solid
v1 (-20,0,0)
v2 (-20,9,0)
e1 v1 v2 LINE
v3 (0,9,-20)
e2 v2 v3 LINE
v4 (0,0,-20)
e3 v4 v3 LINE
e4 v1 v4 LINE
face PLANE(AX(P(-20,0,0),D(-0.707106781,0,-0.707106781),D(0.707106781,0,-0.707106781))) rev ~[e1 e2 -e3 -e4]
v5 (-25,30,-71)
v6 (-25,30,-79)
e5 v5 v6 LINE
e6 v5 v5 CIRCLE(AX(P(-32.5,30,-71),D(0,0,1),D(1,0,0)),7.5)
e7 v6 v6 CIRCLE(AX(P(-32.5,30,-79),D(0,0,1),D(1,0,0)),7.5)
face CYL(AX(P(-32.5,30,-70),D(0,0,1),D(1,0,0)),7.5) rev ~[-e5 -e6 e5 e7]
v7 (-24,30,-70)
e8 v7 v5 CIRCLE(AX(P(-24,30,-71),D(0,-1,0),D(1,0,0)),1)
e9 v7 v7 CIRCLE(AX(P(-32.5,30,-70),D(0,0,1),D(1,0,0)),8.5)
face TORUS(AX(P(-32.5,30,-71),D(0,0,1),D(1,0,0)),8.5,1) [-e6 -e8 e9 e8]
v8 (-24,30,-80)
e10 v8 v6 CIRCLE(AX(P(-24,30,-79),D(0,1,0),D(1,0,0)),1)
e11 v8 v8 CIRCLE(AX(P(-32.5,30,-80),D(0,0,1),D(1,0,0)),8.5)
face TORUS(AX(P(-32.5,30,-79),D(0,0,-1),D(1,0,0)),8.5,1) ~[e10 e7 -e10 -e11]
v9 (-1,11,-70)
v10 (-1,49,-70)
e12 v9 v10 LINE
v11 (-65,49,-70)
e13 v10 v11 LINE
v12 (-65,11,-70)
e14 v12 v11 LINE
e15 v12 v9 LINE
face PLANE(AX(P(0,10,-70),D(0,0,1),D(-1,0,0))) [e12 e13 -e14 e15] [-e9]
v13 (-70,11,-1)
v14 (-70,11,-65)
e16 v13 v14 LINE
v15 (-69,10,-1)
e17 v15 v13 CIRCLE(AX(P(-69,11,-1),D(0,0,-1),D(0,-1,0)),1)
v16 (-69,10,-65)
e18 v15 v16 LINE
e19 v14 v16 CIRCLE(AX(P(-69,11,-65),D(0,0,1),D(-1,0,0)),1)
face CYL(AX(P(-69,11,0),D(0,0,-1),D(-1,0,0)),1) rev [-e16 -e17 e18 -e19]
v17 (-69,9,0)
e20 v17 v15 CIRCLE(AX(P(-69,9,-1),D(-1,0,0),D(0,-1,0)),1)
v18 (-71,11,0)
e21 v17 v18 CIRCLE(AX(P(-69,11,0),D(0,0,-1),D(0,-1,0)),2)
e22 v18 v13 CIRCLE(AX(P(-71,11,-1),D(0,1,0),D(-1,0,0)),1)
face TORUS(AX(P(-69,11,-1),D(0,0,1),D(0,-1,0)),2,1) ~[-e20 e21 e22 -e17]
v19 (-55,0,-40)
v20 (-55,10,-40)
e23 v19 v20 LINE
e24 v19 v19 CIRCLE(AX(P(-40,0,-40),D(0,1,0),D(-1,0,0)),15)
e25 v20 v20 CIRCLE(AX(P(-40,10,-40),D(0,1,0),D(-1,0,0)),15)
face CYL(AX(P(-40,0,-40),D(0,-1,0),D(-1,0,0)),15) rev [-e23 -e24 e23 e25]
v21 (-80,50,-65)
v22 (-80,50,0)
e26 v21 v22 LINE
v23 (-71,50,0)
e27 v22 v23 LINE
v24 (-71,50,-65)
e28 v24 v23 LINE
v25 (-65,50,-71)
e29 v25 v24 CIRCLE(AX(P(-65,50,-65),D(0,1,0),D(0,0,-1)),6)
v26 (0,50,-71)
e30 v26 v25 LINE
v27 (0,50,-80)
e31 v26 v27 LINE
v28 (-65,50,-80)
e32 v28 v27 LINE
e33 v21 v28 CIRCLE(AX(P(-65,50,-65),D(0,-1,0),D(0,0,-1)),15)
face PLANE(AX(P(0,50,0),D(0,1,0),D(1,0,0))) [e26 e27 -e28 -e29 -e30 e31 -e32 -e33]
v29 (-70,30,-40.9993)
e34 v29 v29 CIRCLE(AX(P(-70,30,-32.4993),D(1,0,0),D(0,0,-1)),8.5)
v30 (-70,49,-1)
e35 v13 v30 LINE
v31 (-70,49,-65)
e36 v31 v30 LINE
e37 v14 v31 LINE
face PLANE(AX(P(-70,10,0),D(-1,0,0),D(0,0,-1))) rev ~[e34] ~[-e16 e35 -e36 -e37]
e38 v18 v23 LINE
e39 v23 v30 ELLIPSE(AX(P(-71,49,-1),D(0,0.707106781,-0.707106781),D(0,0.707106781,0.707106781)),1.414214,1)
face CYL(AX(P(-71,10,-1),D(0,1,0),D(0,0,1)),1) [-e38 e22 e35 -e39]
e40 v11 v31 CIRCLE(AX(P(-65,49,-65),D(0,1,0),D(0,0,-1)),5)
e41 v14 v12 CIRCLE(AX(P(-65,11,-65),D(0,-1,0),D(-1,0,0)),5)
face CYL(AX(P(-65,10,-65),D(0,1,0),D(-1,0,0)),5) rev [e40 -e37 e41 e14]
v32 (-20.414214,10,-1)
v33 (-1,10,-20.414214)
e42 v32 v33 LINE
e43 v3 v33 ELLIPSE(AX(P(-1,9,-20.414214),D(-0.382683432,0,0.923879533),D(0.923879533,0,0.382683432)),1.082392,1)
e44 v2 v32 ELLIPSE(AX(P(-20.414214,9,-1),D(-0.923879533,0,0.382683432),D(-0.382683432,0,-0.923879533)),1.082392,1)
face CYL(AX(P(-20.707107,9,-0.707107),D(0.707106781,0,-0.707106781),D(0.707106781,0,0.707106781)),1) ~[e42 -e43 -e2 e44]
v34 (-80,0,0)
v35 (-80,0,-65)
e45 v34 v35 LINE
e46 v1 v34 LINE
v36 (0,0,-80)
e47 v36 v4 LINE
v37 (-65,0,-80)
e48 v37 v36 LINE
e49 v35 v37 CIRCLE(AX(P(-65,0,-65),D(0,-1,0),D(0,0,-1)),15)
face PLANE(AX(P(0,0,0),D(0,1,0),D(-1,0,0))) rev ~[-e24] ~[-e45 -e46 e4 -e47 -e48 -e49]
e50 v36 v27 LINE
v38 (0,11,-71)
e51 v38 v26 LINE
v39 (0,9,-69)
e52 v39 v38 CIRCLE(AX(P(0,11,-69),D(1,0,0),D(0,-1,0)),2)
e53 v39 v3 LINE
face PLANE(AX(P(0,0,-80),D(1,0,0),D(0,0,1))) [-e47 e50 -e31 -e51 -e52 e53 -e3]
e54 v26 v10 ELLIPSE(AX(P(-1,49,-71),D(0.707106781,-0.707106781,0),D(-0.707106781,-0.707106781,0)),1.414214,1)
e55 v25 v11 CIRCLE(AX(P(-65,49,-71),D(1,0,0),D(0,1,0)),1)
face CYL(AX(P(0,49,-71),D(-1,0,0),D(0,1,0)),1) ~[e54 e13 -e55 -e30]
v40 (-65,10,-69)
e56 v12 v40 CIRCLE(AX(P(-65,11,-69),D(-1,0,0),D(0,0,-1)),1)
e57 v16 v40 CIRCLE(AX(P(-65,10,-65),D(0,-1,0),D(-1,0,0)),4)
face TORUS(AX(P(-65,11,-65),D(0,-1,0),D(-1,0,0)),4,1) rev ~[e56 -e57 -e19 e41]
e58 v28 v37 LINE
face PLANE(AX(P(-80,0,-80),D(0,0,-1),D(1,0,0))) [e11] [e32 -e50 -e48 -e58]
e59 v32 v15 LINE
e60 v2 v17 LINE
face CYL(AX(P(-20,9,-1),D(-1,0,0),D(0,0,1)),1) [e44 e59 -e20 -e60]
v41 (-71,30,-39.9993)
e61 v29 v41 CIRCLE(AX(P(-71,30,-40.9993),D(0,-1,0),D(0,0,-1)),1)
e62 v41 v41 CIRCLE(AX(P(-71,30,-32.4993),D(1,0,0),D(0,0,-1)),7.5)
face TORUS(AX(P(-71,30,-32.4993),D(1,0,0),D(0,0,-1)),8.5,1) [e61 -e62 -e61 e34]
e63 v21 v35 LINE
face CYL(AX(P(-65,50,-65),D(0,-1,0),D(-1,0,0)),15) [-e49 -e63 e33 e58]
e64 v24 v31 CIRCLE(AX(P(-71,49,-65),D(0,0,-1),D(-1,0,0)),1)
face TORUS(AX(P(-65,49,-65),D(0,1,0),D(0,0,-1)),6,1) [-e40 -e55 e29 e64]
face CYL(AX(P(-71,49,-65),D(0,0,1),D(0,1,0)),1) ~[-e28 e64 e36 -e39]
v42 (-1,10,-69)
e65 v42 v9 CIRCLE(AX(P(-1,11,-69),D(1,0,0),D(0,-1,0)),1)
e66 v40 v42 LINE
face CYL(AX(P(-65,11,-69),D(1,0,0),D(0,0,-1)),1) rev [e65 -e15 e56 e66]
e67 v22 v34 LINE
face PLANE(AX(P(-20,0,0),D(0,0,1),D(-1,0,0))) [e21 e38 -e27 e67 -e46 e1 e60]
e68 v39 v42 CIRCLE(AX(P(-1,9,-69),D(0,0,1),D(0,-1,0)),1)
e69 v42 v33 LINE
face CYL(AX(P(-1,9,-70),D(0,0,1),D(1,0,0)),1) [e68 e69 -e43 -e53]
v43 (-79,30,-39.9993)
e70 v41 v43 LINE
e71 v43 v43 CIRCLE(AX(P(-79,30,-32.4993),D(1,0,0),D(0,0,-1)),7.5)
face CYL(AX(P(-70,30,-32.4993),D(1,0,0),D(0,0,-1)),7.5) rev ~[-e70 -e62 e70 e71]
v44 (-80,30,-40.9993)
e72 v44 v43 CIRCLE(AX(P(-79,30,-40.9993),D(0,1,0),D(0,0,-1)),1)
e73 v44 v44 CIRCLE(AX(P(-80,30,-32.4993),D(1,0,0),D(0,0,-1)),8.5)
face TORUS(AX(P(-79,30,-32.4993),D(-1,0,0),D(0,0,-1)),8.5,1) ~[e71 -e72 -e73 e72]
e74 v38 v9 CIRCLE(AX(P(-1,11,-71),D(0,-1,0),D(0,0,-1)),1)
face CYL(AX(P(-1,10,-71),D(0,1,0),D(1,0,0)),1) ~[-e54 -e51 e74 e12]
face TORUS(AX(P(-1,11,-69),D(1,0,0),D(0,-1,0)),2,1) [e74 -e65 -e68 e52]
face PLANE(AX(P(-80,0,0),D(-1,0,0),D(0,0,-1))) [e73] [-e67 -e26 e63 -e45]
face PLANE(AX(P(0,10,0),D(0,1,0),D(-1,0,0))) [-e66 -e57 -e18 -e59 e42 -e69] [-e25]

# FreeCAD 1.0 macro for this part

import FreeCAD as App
import Part
import Sketcher
from FreeCAD import Vector
Q = App.Units.Quantity


def edges_at(feature, points):
    """Names of the edges that pass closest to the given points."""
    edges = feature.Shape.Edges
    near = lambda p: min(range(len(edges)), key=lambda i: edges[i].distToShape(Part.Vertex(*p))[0])
    return sorted({f"Edge{near(p) + 1}" for p in points})


def add_polygon(sketch, points):
    """Adds a closed chain of lines whose ends are joined by coincident constraints."""
    first, n = sketch.GeometryCount, len(points)
    for a, b in zip(points, points[1:] + points[:1]):
        sketch.addGeometry(Part.LineSegment(App.Vector(*a, 0), App.Vector(*b, 0)), False)
    for i in range(n):
        sketch.addConstraint(Sketcher.Constraint("Coincident", first + i, 2, first + (i + 1) % n, 1))

doc = App.newDocument("Part")
params = doc.addObject("Spreadsheet::Sheet", "Params")
for row, (alias, value) in enumerate([
    ("sketch1_diameter", "30 mm"),
    ("sketch1_width", "80 mm"),
    ("pad1_length", "10 mm"),
    ("sketch2_width", "10 mm"),
    ("sketch2_width2", "80 mm"),
    ("pad2_length", "40 mm"),
    ("fillet_radius", "5 mm"),
    ("fillet2_radius", "15 mm"),
    ("sketch3_diameter", "15 mm"),
    ("pocket1_length", "40 mm"),
    ("sketch4_diameter", "15 mm"),
    ("pocket2_length", "40 mm"),
    ("fillet3_radius", "1 mm"),
], start=1):
    params.set(f"A{row}", alias)
    params.set(f"B{row}", "=" + value)
    params.setAlias(f"B{row}", alias)

body = doc.addObject("PartDesign::Body", "Body")

sketch1 = body.newObject("Sketcher::SketchObject", "Sketch")
sketch1.AttachmentSupport = (doc.getObject("XZ_Plane"), [""])
sketch1.MapMode = "FlatFace"
add_polygon(sketch1, [(-80, 0), (-20, 0), (0, -20), (0, -80), (-80, -80)])
sketch1.addGeometry(Part.Circle(Vector(-40, -40, 0), Vector(0, 0, 1), 15), False)
sketch1.addConstraint([
    Sketcher.Constraint("Horizontal", 0),
    Sketcher.Constraint("Vertical", 2),
    Sketcher.Constraint("Horizontal", 3),
    Sketcher.Constraint("Vertical", 4),
    Sketcher.Constraint("PointOnObject", 0, 2, -1),
    Sketcher.Constraint("PointOnObject", 1, 2, -2),
    Sketcher.Constraint("Equal", 0, 2),
    Sketcher.Constraint("Equal", 3, 4),
    Sketcher.Constraint("Diameter", 5, Q("30 mm")),
    Sketcher.Constraint("DistanceX", 3, 2, 3, 1, Q("80 mm")),
    Sketcher.Constraint("DistanceX", 0, 2, -1, 1, Q("20 mm")),
    Sketcher.Constraint("DistanceX", 5, 3, 0, 2, Q("20 mm")),
    Sketcher.Constraint("DistanceY", 5, 3, 1, 2, Q("20 mm")),
])
sketch1.setExpression("Constraints[13]", "Params.sketch1_diameter")
sketch1.setExpression("Constraints[14]", "Params.sketch1_width")
pad1 = body.newObject("PartDesign::Pad", "Pad")
pad1.Profile = sketch1
pad1.setExpression("Length", "Params.pad1_length")
pad1.Reversed = True

sketch2 = body.newObject("Sketcher::SketchObject", "Sketch001")
sketch2.AttachmentSupport = (doc.getObject("XZ_Plane"), [""])
sketch2.MapMode = "FlatFace"
sketch2.AttachmentOffset = App.Placement(Vector(0, 0, -10), App.Rotation())
add_polygon(sketch2, [(0, -70), (0, -80), (-80, -80), (-80, 0), (-70, 0), (-70, -70)])
sketch2.addConstraint([
    Sketcher.Constraint("Vertical", 0),
    Sketcher.Constraint("Horizontal", 1),
    Sketcher.Constraint("Vertical", 2),
    Sketcher.Constraint("Horizontal", 3),
    Sketcher.Constraint("Vertical", 4),
    Sketcher.Constraint("Horizontal", 5),
    Sketcher.Constraint("PointOnObject", 0, 2, -2),
    Sketcher.Constraint("PointOnObject", 2, 2, -1),
    Sketcher.Constraint("Equal", 3, 0),
    Sketcher.Constraint("Equal", 1, 2),
    Sketcher.Constraint("DistanceX", 3, 1, 3, 2, Q("10 mm")),
    Sketcher.Constraint("DistanceX", 1, 2, 1, 1, Q("80 mm")),
])
sketch2.setExpression("Constraints[16]", "Params.sketch2_width")
sketch2.setExpression("Constraints[17]", "Params.sketch2_width2")
pad2 = body.newObject("PartDesign::Pad", "Pad001")
pad2.Profile = sketch2
pad2.setExpression("Length", "Params.pad2_length")
pad2.Reversed = True
doc.recompute()

fillet = body.newObject("PartDesign::Fillet", "Fillet")
fillet.Base = (pad2, edges_at(pad2, [(-70, 30, -70)]))
fillet.setExpression("Radius", "Params.fillet_radius")
doc.recompute()

fillet2 = body.newObject("PartDesign::Fillet", "Fillet001")
fillet2.Base = (fillet, edges_at(fillet, [(-80, 25, -80)]))
fillet2.setExpression("Radius", "Params.fillet2_radius")

sketch3 = body.newObject("Sketcher::SketchObject", "Sketch002")
sketch3.AttachmentSupport = (doc.getObject("XY_Plane"), [""])
sketch3.MapMode = "FlatFace"
sketch3.AttachmentOffset = App.Placement(Vector(0, 0, -70), App.Rotation())
sketch3.addGeometry(Part.Circle(Vector(-32.5, 30, 0), Vector(0, 0, 1), 7.5), False)
sketch3.addConstraint([
    Sketcher.Constraint("Diameter", 0, Q("15 mm")),
    Sketcher.Constraint("DistanceY", -1, 1, 0, 3, Q("30 mm")),
    Sketcher.Constraint("DistanceX", 0, 3, -1, 1, Q("32.5 mm")),
])
sketch3.setExpression("Constraints[0]", "Params.sketch3_diameter")
pocket1 = body.newObject("PartDesign::Pocket", "Pocket")
pocket1.Profile = sketch3
pocket1.setExpression("Length", "Params.pocket1_length")

sketch4 = body.newObject("Sketcher::SketchObject", "Sketch003")
sketch4.AttachmentSupport = (doc.getObject("YZ_Plane"), [""])
sketch4.MapMode = "FlatFace"
sketch4.AttachmentOffset = App.Placement(Vector(0, 0, -70), App.Rotation())
sketch4.addGeometry(Part.Circle(Vector(30, -32.4993, 0), Vector(0, 0, 1), 7.5), False)
sketch4.addConstraint([
    Sketcher.Constraint("Diameter", 0, Q("15 mm")),
    Sketcher.Constraint("DistanceX", -1, 1, 0, 3, Q("30 mm")),
    Sketcher.Constraint("DistanceY", 0, 3, -1, 1, Q("32.4993 mm")),
])
sketch4.setExpression("Constraints[0]", "Params.sketch4_diameter")
pocket2 = body.newObject("PartDesign::Pocket", "Pocket001")
pocket2.Profile = sketch4
pocket2.setExpression("Length", "Params.pocket2_length")
doc.recompute()

fillet3 = body.newObject("PartDesign::Fillet", "Fillet002")
fillet3.Base = (pocket2, edges_at(pocket2, [
    (-32.5, 50, -70),
    (-70, 50, -32.5),
    (-70, 30, 0),
    (-68.535, 10, -68.535),
    (-32.5, 10, -70),
    (-70, 10, -32.5),
    (-45, 10, 0),
    (-10, 10, -10),
    (0, 10, -45),
    (0, 30, -70),
    (-70, 30, -24.999),
    (-40, 30, -70),
    (-40, 30, -80),
    (-80, 30, -24.999),
]))
fillet3.setExpression("Radius", "Params.fillet3_radius")

doc.recompute()
